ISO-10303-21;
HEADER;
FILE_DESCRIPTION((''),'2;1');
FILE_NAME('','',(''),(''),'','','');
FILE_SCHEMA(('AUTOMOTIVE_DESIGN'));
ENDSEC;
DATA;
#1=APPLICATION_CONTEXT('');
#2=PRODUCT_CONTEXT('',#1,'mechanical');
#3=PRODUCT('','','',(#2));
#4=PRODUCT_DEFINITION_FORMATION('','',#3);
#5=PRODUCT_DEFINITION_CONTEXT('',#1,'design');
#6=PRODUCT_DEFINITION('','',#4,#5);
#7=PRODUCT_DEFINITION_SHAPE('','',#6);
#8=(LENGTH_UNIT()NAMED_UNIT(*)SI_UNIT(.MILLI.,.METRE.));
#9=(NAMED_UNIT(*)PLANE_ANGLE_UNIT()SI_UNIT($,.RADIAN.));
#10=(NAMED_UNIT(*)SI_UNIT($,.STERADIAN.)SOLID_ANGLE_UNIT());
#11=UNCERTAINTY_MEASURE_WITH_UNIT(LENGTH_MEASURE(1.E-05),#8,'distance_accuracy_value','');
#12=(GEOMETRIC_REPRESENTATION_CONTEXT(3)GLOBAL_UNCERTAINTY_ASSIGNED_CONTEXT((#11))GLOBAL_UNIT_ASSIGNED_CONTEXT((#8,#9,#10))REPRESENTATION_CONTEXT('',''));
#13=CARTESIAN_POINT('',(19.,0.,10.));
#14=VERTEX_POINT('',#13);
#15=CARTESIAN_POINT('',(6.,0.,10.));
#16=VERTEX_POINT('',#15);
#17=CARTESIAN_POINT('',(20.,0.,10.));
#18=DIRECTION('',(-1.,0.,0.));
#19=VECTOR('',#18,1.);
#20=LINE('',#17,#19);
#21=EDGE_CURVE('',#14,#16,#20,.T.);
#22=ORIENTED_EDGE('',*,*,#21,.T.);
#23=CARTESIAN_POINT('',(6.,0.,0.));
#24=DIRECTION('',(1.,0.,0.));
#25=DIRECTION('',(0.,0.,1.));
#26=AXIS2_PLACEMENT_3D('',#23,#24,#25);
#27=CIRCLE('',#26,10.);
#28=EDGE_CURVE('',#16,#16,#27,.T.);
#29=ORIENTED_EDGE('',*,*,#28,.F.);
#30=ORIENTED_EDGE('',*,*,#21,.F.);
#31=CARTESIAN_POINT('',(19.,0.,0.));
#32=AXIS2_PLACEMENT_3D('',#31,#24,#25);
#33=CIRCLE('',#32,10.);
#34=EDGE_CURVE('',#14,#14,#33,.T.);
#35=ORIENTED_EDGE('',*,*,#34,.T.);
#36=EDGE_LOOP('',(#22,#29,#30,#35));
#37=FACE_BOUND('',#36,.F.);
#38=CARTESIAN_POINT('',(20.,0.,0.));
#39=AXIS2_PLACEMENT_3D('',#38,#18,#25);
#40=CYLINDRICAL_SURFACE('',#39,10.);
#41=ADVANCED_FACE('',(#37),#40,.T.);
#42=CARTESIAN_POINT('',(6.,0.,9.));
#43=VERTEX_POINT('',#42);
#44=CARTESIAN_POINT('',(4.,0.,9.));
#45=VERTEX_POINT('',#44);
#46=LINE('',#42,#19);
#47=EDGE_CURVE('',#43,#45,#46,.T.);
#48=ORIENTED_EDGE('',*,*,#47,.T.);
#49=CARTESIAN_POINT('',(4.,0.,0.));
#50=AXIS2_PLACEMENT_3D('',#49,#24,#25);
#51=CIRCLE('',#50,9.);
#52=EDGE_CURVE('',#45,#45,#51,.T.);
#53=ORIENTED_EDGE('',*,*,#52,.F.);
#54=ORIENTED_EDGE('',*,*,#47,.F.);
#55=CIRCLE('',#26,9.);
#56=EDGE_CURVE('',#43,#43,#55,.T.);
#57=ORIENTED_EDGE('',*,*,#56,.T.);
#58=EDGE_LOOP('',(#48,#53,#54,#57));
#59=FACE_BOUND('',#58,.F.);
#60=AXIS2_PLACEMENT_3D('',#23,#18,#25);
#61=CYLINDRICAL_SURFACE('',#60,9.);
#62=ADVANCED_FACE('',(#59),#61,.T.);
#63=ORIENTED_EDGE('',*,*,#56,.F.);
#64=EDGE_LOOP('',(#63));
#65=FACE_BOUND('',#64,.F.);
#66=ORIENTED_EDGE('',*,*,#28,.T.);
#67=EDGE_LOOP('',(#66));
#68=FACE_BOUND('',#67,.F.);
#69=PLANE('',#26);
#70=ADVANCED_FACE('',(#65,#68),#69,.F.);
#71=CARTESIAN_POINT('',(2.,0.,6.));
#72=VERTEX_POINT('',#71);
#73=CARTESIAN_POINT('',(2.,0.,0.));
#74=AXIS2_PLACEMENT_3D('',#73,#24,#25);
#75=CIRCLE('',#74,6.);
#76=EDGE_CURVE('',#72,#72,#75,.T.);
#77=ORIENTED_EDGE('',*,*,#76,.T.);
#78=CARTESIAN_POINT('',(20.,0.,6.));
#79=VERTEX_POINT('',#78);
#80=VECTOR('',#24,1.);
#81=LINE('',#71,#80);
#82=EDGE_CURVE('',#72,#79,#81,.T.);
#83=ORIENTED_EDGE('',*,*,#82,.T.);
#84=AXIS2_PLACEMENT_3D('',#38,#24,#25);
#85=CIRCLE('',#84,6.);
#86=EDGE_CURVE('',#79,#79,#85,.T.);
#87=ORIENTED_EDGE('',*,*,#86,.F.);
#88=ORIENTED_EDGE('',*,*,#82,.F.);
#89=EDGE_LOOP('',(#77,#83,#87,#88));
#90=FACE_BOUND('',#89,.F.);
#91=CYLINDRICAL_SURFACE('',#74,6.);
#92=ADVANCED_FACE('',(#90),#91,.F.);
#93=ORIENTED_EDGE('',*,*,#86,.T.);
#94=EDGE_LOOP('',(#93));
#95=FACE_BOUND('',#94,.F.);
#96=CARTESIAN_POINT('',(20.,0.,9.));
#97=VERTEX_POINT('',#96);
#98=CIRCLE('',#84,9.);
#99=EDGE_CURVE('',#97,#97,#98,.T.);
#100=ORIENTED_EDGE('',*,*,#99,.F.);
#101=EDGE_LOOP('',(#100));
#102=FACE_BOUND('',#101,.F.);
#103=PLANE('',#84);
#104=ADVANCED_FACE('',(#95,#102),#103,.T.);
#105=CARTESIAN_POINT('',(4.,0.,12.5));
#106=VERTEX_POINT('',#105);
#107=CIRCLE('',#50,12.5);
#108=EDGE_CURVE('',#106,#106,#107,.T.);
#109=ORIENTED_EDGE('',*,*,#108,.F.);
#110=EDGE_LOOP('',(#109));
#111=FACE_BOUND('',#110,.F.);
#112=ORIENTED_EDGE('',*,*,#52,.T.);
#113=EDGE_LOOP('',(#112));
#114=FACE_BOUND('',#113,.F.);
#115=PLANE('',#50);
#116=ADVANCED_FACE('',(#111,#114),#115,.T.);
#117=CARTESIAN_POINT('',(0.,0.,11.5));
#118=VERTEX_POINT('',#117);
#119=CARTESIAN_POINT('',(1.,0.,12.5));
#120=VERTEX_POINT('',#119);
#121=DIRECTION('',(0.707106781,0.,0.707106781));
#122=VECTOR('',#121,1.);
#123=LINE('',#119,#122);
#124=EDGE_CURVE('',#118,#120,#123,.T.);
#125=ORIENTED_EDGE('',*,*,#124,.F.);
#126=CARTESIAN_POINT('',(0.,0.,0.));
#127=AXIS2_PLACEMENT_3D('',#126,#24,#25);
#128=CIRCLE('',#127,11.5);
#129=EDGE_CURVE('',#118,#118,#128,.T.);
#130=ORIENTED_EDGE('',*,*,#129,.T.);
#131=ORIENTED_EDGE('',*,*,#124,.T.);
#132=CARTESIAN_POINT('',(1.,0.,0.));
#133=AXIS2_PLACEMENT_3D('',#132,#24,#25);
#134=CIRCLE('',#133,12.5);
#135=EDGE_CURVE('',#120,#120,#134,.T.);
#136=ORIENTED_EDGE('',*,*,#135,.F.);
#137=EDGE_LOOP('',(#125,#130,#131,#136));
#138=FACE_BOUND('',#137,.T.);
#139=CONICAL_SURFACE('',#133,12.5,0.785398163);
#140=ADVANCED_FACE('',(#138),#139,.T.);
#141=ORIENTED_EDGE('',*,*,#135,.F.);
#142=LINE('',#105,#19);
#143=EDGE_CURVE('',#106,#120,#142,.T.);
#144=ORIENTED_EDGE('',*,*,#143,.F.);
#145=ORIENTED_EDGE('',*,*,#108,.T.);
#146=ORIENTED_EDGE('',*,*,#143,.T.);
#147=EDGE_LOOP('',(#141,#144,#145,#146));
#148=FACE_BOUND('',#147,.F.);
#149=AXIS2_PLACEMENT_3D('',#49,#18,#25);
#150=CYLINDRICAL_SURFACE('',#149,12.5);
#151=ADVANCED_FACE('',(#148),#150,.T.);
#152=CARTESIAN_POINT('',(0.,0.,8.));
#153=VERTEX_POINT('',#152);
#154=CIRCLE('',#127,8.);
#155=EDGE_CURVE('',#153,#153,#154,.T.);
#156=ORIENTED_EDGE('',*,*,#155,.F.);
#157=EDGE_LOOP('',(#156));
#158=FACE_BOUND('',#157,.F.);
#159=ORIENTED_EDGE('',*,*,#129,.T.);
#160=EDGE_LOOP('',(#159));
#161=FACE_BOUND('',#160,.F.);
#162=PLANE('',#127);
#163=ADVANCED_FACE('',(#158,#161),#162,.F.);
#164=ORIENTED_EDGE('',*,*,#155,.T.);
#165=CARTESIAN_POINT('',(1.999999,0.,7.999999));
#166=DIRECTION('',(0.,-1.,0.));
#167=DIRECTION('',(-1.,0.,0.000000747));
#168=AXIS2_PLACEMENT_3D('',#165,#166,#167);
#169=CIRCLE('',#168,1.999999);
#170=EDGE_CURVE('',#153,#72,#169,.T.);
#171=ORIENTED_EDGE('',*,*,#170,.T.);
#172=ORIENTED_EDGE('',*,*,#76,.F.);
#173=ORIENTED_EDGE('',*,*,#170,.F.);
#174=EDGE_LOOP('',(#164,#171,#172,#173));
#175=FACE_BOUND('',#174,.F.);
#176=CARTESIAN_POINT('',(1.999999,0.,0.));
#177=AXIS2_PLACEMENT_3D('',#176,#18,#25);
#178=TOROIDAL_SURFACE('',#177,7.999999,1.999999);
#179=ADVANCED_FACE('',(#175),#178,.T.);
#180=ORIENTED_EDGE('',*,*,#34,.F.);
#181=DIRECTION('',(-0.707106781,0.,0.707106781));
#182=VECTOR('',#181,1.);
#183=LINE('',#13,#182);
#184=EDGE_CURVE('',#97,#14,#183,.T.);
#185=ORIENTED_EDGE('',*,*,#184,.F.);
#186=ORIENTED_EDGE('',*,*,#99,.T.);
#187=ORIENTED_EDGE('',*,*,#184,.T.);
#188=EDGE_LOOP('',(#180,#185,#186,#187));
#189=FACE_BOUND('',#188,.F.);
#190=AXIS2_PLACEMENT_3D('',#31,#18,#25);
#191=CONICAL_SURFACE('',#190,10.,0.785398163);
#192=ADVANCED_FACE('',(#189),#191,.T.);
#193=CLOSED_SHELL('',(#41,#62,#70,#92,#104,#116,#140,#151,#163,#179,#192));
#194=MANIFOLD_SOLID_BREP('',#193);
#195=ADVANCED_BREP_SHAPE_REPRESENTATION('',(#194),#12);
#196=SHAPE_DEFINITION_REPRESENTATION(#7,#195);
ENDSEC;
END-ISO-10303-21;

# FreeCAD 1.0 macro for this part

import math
import FreeCAD as App
import Part
import Sketcher

V = App.Vector


def edges_at(feature, points):
    """Names of the edges that pass closest to the given points."""
    edges = feature.Shape.Edges
    near = lambda p: min(range(len(edges)), key=lambda i: edges[i].distToShape(Part.Vertex(*p))[0])
    return sorted({f"Edge{near(p) + 1}" for p in points})

doc = App.newDocument("Part")
params = doc.addObject("Spreadsheet::Sheet", "Params")
for row, (alias, value) in enumerate([
    ("sketch1_radius", "1.999999 mm"),
    ("sketch1_width", "18 mm"),
    ("sketch1_width2", "14 mm"),
    ("sketch1_width3", "2 mm"),
    ("sketch1_height", "1 mm"),
    ("revolution_angle", "360 deg"),
    ("chamfer_size", "1 mm"),
], start=1):
    params.set(f"A{row}", alias)
    params.set(f"B{row}", "=" + value)
    params.setAlias(f"B{row}", alias)

body = doc.addObject("PartDesign::Body", "Body")

# Sketch on XZ plane
sketch1 = doc.addObject("Sketcher::SketchObject", "Sketch")
body.addObject(sketch1)
sketch1.AttachmentSupport = (doc.XZ_Plane, [""])
sketch1.MapMode = "FlatFace"
sketch1.addGeometry([
    Part.LineSegment(V(0, 12.5, 0), V(0, 8, 0)),  # 0
    Part.ArcOfCircle(Part.Circle(V(2, 8, 0), V(0, 0, 1), 2), math.radians(180), math.radians(270)),  # 1
    Part.LineSegment(V(2, 6, 0), V(20, 6, 0)),  # 2
    Part.LineSegment(V(20, 6, 0), V(20, 10, 0)),  # 3
    Part.LineSegment(V(20, 10, 0), V(6, 10, 0)),  # 4
    Part.LineSegment(V(6, 10, 0), V(6, 9, 0)),  # 5
    Part.LineSegment(V(6, 9, 0), V(4, 9, 0)),  # 6
    Part.LineSegment(V(4, 9, 0), V(4, 12.5, 0)),  # 7
    Part.LineSegment(V(4, 12.5, 0), V(0, 12.5, 0)),  # 8
], False)
sketch1.addConstraint([
    Sketcher.Constraint("Tangent", 0, 2, 1, 1),
    Sketcher.Constraint("Tangent", 1, 2, 2, 1),
    Sketcher.Constraint("Coincident", 2, 2, 3, 1),
    Sketcher.Constraint("Coincident", 3, 2, 4, 1),
    Sketcher.Constraint("Coincident", 4, 2, 5, 1),
    Sketcher.Constraint("Coincident", 5, 2, 6, 1),
    Sketcher.Constraint("Coincident", 6, 2, 7, 1),
    Sketcher.Constraint("Coincident", 7, 2, 8, 1),
    Sketcher.Constraint("Coincident", 8, 2, 0, 1),
    Sketcher.Constraint("Vertical", 0),
    Sketcher.Constraint("Horizontal", 2),
    Sketcher.Constraint("Vertical", 3),
    Sketcher.Constraint("Horizontal", 4),
    Sketcher.Constraint("Vertical", 5),
    Sketcher.Constraint("Horizontal", 6),
    Sketcher.Constraint("Vertical", 7),
    Sketcher.Constraint("Horizontal", 8),
    Sketcher.Constraint("PointOnObject", 0, 2, -2),
    Sketcher.Constraint("Equal", 8, 3),
    Sketcher.Constraint("Radius", 1, 1.999999),
    Sketcher.Constraint("DistanceX", 2, 1, 2, 2, 18.0),
    Sketcher.Constraint("DistanceX", 4, 2, 4, 1, 14.0),
    Sketcher.Constraint("DistanceX", 6, 2, 6, 1, 2.0),
    Sketcher.Constraint("DistanceY", 5, 2, 5, 1, 1.0),
    Sketcher.Constraint("DistanceY", 0, 2, 0, 1, 4.5),
    Sketcher.Constraint("DistanceY", -1, 1, 1, 3, 7.999999),
])
sketch1.setExpression("Constraints[19]", "Params.sketch1_radius")
sketch1.setExpression("Constraints[20]", "Params.sketch1_width")
sketch1.setExpression("Constraints[21]", "Params.sketch1_width2")
sketch1.setExpression("Constraints[22]", "Params.sketch1_width3")
sketch1.setExpression("Constraints[23]", "Params.sketch1_height")
revolution = doc.addObject("PartDesign::Revolution", "Revolution")
body.addObject(revolution)
revolution.Profile = sketch1
revolution.ReferenceAxis = (sketch1, ["H_Axis"])
revolution.setExpression("Angle", "Params.revolution_angle")
doc.recompute()

chamfer = doc.addObject("PartDesign::Chamfer", "Chamfer")
body.addObject(chamfer)
chamfer.Base = (revolution, edges_at(revolution, [(0, 0, -12.5), (20, 0, -10)]))
chamfer.setExpression("Size", "Params.chamfer_size")

doc.recompute()
